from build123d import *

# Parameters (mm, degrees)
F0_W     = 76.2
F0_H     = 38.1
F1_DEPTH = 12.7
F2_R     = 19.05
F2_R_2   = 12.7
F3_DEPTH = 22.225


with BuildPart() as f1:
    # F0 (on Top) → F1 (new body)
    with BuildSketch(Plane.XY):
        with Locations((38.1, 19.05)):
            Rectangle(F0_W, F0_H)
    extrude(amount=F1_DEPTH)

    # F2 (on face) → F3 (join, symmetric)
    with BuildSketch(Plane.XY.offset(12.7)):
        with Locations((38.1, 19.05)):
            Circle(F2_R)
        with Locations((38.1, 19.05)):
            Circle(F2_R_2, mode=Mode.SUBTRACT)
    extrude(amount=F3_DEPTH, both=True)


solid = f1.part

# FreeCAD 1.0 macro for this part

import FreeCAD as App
import Part
import Sketcher

V = App.Vector
Q = App.Units.Quantity

doc = App.newDocument("Part")
body = doc.addObject("PartDesign::Body", "Body")

# Sketch on XY plane
sketch1 = doc.addObject("Sketcher::SketchObject", "Sketch")
body.addObject(sketch1)
sketch1.AttachmentSupport = (doc.XY_Plane, [""])
sketch1.MapMode = "FlatFace"
sketch1.addGeometry([
    Part.LineSegment(V(0, 38.1, 0), V(0, 0, 0)),
    Part.LineSegment(V(0, 0, 0), V(76.2, 0, 0)),
    Part.LineSegment(V(76.2, 0, 0), V(76.2, 38.1, 0)),
    Part.LineSegment(V(76.2, 38.1, 0), V(0, 38.1, 0)),
], False)
sketch1.addConstraint([
    Sketcher.Constraint("Coincident", 0, 2, 1, 1),
    Sketcher.Constraint("Coincident", 1, 2, 2, 1),
    Sketcher.Constraint("Coincident", 2, 2, 3, 1),
    Sketcher.Constraint("Coincident", 3, 2, 0, 1),
    Sketcher.Constraint("Vertical", 0),
    Sketcher.Constraint("Horizontal", 1),
    Sketcher.Constraint("Vertical", 2),
    Sketcher.Constraint("Horizontal", 3),
    Sketcher.Constraint("Coincident", 0, 2, -1, 1),
    Sketcher.Constraint("DistanceX", 1, 1, 1, 2, Q("3 in")),
    Sketcher.Constraint("DistanceY", 0, 2, 0, 1, Q("1.5 in")),
])
pad1 = doc.addObject("PartDesign::Pad", "Pad")
body.addObject(pad1)
pad1.Profile = sketch1
pad1.Length = Q("0.5 in")

# Sketch on XY plane
sketch2 = doc.addObject("Sketcher::SketchObject", "Sketch001")
body.addObject(sketch2)
sketch2.AttachmentSupport = (doc.XY_Plane, [""])
sketch2.MapMode = "FlatFace"
sketch2.AttachmentOffset = App.Placement(V(0, 0, 0.5 * 25.4), App.Rotation())
sketch2.addGeometry([
    Part.Circle(V(38.1, 19.05, 0), V(0, 0, 1), 19.05),
    Part.Circle(V(38.1, 19.05, 0), V(0, 0, 1), 12.7),
], False)
sketch2.addConstraint([
    Sketcher.Constraint("Coincident", 1, 3, 0, 3),
    Sketcher.Constraint("Diameter", 1, Q("1 in")),
    Sketcher.Constraint("Diameter", 0, Q("1.5 in")),
    Sketcher.Constraint("DistanceX", -1, 1, 0, 3, Q("1.5 in")),
    Sketcher.Constraint("DistanceY", -1, 1, 0, 3, Q("0.75 in")),
])
pad2 = doc.addObject("PartDesign::Pad", "Pad001")
body.addObject(pad2)
pad2.Profile = sketch2
pad2.Length = Q("1.75 in")
pad2.Midplane = True

doc.recompute()
